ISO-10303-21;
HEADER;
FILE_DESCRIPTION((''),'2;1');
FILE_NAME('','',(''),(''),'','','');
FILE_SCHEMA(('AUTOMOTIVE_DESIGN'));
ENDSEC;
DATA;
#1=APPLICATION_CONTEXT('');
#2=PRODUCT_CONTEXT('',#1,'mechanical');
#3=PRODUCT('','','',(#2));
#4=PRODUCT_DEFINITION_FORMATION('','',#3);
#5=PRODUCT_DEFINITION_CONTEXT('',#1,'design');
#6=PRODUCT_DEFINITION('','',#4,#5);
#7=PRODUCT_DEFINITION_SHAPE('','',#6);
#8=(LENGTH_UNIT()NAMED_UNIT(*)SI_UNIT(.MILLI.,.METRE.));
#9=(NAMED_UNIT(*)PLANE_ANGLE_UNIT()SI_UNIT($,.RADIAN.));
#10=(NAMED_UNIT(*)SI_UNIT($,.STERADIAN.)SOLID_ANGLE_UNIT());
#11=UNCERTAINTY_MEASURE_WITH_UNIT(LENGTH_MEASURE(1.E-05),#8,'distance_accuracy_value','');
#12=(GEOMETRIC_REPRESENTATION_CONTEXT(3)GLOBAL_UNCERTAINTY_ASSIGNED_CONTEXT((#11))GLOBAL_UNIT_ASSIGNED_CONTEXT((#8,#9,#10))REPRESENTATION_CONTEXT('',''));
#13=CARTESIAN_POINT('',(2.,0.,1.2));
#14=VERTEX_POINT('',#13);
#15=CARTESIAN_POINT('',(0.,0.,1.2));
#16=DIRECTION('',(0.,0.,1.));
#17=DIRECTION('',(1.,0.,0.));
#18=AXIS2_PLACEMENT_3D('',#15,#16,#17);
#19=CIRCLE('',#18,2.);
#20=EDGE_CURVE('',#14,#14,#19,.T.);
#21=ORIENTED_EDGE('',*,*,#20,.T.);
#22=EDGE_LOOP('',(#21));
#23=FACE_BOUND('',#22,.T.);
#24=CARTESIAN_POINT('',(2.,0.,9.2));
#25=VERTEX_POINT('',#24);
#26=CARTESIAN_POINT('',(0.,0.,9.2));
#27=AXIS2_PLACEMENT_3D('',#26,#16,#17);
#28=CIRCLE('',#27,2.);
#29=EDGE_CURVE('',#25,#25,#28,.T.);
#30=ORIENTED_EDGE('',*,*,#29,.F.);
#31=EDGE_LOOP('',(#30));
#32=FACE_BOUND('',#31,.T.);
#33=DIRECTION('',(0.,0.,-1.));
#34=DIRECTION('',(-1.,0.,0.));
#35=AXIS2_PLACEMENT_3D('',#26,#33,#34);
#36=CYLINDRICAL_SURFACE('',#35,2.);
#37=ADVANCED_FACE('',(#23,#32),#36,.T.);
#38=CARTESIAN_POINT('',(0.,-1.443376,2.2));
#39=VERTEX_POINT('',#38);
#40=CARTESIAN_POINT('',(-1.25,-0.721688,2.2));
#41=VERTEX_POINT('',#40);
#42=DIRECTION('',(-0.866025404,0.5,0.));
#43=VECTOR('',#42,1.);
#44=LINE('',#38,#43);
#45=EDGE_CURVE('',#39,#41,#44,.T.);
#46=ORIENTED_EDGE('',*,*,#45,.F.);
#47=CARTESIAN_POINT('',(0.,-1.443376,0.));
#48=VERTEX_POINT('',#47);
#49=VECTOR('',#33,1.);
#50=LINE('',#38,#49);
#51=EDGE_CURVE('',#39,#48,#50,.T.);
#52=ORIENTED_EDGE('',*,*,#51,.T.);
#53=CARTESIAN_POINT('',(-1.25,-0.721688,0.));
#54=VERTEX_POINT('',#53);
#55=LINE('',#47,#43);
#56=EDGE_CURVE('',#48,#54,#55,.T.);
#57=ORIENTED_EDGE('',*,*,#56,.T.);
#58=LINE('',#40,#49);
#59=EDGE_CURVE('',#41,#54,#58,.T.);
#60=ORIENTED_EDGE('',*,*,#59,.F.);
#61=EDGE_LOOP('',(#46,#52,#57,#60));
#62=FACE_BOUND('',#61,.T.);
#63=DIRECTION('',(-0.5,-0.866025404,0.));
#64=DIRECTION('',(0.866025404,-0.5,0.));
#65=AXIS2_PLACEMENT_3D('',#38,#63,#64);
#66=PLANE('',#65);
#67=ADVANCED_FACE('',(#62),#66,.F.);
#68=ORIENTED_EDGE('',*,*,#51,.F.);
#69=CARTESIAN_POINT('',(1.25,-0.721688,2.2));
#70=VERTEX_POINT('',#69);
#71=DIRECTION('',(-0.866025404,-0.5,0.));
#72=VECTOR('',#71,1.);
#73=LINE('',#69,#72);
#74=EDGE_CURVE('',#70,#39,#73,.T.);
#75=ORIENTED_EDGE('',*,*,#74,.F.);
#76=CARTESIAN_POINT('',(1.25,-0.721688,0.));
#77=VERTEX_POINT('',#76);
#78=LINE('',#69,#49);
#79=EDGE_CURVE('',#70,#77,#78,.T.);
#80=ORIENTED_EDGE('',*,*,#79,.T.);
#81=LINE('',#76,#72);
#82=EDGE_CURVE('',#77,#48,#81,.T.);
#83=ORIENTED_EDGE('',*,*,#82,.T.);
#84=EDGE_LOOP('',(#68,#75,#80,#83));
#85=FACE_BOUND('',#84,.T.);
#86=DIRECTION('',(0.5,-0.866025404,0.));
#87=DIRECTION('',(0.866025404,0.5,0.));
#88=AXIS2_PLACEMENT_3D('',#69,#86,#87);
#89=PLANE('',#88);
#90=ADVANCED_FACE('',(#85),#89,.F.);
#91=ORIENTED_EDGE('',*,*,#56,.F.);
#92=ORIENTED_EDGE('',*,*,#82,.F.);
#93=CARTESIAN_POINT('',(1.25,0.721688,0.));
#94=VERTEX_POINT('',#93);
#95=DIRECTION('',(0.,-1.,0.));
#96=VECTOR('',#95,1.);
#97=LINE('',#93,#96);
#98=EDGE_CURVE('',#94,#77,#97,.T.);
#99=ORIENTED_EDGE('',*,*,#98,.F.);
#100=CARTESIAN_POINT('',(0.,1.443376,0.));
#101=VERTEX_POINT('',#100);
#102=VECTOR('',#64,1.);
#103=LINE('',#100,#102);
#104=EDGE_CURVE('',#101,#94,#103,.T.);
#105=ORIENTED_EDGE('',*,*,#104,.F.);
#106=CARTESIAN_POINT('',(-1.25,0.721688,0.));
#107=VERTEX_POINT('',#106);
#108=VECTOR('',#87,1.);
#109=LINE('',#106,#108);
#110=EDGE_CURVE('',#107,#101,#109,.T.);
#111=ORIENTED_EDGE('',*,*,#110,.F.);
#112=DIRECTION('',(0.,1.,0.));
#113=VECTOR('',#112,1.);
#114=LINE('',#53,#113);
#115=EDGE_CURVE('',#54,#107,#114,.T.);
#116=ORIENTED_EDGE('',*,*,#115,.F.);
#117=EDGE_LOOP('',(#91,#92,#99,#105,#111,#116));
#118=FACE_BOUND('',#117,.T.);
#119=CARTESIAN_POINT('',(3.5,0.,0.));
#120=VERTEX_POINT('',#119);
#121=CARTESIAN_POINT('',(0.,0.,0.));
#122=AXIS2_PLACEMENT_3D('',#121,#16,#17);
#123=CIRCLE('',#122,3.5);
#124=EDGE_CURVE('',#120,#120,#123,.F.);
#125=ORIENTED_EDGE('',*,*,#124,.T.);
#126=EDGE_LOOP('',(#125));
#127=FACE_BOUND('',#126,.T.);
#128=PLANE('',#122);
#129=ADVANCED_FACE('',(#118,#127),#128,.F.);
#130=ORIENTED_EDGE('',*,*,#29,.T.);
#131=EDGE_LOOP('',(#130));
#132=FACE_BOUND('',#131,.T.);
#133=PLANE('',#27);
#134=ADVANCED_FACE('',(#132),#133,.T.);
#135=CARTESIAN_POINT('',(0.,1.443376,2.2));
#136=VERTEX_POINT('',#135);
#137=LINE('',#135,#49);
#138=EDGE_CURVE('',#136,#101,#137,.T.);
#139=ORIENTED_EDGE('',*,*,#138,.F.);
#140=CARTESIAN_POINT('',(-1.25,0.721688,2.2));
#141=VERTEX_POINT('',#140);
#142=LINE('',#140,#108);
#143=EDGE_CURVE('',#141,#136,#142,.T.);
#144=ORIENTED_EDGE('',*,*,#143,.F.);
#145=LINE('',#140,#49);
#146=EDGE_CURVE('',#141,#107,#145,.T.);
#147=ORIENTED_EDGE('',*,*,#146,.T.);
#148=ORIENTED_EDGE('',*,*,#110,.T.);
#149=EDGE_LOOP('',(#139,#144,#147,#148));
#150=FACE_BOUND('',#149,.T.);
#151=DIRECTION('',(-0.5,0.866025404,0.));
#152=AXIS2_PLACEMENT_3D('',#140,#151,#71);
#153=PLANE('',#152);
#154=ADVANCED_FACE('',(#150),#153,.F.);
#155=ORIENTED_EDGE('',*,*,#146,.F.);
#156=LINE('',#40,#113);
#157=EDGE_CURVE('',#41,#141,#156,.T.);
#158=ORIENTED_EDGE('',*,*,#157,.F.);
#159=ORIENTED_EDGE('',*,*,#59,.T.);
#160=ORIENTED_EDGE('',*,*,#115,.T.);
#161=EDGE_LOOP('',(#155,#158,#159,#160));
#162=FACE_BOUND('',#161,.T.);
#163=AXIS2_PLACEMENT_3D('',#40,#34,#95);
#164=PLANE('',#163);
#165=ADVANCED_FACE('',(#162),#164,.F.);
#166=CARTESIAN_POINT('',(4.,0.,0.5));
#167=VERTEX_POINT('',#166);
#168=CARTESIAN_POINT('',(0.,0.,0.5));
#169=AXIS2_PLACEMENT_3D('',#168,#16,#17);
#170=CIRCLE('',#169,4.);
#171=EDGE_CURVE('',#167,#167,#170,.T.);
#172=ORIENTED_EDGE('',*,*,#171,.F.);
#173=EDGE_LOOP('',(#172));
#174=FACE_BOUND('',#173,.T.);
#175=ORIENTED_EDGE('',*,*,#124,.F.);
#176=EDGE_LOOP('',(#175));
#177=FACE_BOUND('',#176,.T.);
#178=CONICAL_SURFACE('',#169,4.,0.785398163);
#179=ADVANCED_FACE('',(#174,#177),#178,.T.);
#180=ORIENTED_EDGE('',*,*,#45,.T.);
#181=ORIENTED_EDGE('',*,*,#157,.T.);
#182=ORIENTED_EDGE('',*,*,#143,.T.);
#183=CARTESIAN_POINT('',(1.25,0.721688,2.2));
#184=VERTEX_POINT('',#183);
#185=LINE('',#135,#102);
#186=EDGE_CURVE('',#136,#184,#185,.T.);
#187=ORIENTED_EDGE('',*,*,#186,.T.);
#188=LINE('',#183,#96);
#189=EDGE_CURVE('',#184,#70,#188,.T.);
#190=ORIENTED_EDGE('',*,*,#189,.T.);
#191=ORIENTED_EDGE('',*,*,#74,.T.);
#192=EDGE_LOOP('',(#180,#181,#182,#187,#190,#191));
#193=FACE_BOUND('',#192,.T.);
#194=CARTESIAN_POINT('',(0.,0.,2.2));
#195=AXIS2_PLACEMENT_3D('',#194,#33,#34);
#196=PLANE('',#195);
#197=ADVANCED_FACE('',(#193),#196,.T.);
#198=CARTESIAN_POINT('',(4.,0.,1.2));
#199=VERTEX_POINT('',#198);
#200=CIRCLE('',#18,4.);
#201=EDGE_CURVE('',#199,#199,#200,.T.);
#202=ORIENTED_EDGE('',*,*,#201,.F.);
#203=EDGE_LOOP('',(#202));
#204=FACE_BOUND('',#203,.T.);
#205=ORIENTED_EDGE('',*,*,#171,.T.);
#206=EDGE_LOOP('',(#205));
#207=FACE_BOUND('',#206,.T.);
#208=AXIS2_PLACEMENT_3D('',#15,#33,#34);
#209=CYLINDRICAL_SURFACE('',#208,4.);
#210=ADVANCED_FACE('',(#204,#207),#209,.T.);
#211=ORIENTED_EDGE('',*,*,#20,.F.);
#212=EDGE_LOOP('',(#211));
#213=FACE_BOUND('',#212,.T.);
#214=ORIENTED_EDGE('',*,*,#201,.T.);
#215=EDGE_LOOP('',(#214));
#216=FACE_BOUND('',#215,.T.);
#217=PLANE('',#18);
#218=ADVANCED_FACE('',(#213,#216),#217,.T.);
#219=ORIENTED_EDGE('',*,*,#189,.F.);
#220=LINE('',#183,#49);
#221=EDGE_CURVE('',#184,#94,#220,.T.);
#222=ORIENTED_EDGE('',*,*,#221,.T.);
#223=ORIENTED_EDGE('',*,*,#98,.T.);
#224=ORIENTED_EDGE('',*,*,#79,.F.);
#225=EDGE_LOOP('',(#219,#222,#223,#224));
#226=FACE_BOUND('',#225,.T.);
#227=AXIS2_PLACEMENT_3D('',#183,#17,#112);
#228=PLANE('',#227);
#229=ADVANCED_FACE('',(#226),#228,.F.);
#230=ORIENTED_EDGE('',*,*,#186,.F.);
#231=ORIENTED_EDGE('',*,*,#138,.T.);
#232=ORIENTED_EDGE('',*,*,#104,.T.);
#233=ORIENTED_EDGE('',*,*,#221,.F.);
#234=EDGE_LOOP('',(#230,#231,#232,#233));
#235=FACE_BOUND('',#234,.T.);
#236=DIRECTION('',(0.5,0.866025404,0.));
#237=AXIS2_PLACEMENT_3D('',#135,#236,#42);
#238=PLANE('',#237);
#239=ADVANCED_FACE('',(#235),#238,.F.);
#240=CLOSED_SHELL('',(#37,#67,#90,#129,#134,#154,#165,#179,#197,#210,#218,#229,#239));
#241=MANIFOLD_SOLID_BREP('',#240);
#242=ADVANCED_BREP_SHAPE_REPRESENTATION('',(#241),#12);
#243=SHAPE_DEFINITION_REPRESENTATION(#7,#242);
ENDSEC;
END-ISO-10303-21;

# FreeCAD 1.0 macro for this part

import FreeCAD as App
import Part
import Sketcher

V = App.Vector
Q = App.Units.Quantity


def edges_at(feature, points):
    """Names of the edges that pass closest to the given points."""
    edges = feature.Shape.Edges
    near = lambda p: min(range(len(edges)), key=lambda i: edges[i].distToShape(Part.Vertex(*p))[0])
    return sorted({f"Edge{near(p) + 1}" for p in points})

doc = App.newDocument("Part")
params = doc.addObject("Spreadsheet::Sheet", "Params")
for row, (alias, value) in enumerate([
    ("sketch1_diameter", "8 mm"),
    ("pad1_length", "1.2 mm"),
    ("chamfer_size", "0.5 mm"),
    ("sketch2_diameter", "4 mm"),
    ("pad2_length", "8 mm"),
    ("pocket1_length", "2.2 mm"),
], start=1):
    params.set(f"A{row}", alias)
    params.set(f"B{row}", "=" + value)
    params.setAlias(f"B{row}", alias)

body = doc.addObject("PartDesign::Body", "Body")

sketch1 = doc.addObject("Sketcher::SketchObject", "Sketch")
body.addObject(sketch1)
sketch1.AttachmentSupport = (doc.XY_Plane, [""])
sketch1.MapMode = "FlatFace"
sketch1.addGeometry(Part.Circle(V(0, 0, 0), V(0, 0, 1), 4), False)
sketch1.addConstraint([
    Sketcher.Constraint("Coincident", 0, 3, -1, 1),
    Sketcher.Constraint("Diameter", 0, Q("8 mm")),
])
sketch1.setExpression("Constraints[1]", "Params.sketch1_diameter")
pad1 = doc.addObject("PartDesign::Pad", "Pad")
body.addObject(pad1)
pad1.Profile = sketch1
pad1.setExpression("Length", "Params.pad1_length")
doc.recompute()

chamfer = doc.addObject("PartDesign::Chamfer", "Chamfer")
body.addObject(chamfer)
chamfer.Base = (pad1, edges_at(pad1, [(-4, 0, 0)]))
chamfer.setExpression("Size", "Params.chamfer_size")

sketch2 = doc.addObject("Sketcher::SketchObject", "Sketch001")
body.addObject(sketch2)
sketch2.AttachmentSupport = (doc.XY_Plane, [""])
sketch2.MapMode = "FlatFace"
sketch2.AttachmentOffset = App.Placement(V(0, 0, 1.2), App.Rotation())
sketch2.addGeometry(Part.Circle(V(0, 0, 0), V(0, 0, 1), 2), False)
sketch2.addConstraint([
    Sketcher.Constraint("Coincident", 0, 3, -1, 1),
    Sketcher.Constraint("Diameter", 0, Q("4 mm")),
])
sketch2.setExpression("Constraints[1]", "Params.sketch2_diameter")
pad2 = doc.addObject("PartDesign::Pad", "Pad001")
body.addObject(pad2)
pad2.Profile = sketch2
pad2.setExpression("Length", "Params.pad2_length")

sketch3 = doc.addObject("Sketcher::SketchObject", "Sketch002")
body.addObject(sketch3)
sketch3.AttachmentSupport = (doc.XY_Plane, [""])
sketch3.MapMode = "FlatFace"
sketch3.addGeometry([
    Part.LineSegment(V(0, 1.4, 0), V(1.2, 0.7, 0)),
    Part.LineSegment(V(1.2, 0.7, 0), V(1.2, -0.7, 0)),
    Part.LineSegment(V(1.2, -0.7, 0), V(0, -1.4, 0)),
    Part.LineSegment(V(0, -1.4, 0), V(-1.2, -0.7, 0)),
    Part.LineSegment(V(-1.2, -0.7, 0), V(-1.2, 0.7, 0)),
    Part.LineSegment(V(-1.2, 0.7, 0), V(0, 1.4, 0)),
], False)
sketch3.addConstraint([
    Sketcher.Constraint("Coincident", 0, 2, 1, 1),
    Sketcher.Constraint("Coincident", 1, 2, 2, 1),
    Sketcher.Constraint("Coincident", 2, 2, 3, 1),
    Sketcher.Constraint("Coincident", 3, 2, 4, 1),
    Sketcher.Constraint("Coincident", 4, 2, 5, 1),
    Sketcher.Constraint("Coincident", 5, 2, 0, 1),
    Sketcher.Constraint("Vertical", 1),
    Sketcher.Constraint("Vertical", 4),
    Sketcher.Constraint("Symmetric", 0, 2, 3, 2, -1, 1),
    Sketcher.Constraint("Symmetric", 2, 2, 5, 2, -1, 1),
    Sketcher.Constraint("PointOnObject", 2, 2, -2),
    Sketcher.Constraint("Parallel", 2, 5),
    Sketcher.Constraint("Horizontal", 1, 2, 3, 2),
    Sketcher.Constraint("Angle", 0, Q("-30 deg")),
    Sketcher.Constraint("DistanceX", 3, 2, 1, 2, Q("2.5 mm")),
    Sketcher.Constraint("DistanceY", 1, 2, 1, 1, Q("1.443376 mm")),
])
pocket1 = doc.addObject("PartDesign::Pocket", "Pocket")
body.addObject(pocket1)
pocket1.Profile = sketch3
pocket1.setExpression("Length", "Params.pocket1_length")
pocket1.Reversed = True

doc.recompute()
